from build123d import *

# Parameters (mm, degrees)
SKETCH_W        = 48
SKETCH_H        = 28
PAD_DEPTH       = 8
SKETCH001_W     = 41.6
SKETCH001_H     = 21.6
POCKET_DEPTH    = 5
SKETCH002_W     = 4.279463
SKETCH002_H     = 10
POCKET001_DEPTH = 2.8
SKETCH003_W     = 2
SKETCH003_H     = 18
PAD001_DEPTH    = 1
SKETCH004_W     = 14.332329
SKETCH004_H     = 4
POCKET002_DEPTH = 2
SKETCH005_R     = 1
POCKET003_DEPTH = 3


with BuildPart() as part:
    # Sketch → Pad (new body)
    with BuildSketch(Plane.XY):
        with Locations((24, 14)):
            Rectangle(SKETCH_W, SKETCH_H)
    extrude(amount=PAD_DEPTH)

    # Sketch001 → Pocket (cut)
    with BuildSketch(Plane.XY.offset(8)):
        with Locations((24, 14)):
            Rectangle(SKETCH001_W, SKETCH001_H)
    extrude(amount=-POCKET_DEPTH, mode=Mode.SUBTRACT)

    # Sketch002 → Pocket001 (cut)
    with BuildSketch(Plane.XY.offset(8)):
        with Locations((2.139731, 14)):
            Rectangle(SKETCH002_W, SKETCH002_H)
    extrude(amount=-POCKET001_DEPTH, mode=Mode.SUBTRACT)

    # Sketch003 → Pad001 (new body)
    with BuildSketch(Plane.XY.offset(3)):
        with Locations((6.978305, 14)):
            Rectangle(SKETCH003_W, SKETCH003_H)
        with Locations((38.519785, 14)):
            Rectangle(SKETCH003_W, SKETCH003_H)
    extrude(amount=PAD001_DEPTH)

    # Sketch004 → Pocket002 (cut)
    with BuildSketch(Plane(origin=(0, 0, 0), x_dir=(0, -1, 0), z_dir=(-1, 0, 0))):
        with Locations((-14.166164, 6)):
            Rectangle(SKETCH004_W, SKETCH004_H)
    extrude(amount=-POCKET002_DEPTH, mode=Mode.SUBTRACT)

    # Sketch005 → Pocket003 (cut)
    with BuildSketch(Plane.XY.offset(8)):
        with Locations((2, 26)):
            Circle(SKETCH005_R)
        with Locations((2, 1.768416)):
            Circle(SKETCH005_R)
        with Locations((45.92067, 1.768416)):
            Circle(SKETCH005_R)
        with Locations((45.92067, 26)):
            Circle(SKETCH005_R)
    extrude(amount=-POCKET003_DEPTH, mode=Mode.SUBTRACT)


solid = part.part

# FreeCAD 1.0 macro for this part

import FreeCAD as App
import Part
import Sketcher
from FreeCAD import Vector


def add_polygon(sketch, points):
    """Adds a closed chain of lines whose ends are joined by coincident constraints."""
    first, n = sketch.GeometryCount, len(points)
    for a, b in zip(points, points[1:] + points[:1]):
        sketch.addGeometry(Part.LineSegment(App.Vector(*a, 0), App.Vector(*b, 0)), False)
    for i in range(n):
        sketch.addConstraint(Sketcher.Constraint("Coincident", first + i, 2, first + (i + 1) % n, 1))

doc = App.newDocument("Part")
body = doc.addObject("PartDesign::Body", "Body")

# Sketch on XY plane
sketch1 = body.newObject("Sketcher::SketchObject", "Sketch")
sketch1.AttachmentSupport = (doc.getObject("XY_Plane"), [""])
sketch1.MapMode = "FlatFace"
add_polygon(sketch1, [(0, 28), (0, 0), (48, 0), (48, 28)])  # lines 0-3
sketch1.addConstraint(Sketcher.Constraint("Vertical", 0))
sketch1.addConstraint(Sketcher.Constraint("Horizontal", 1))
sketch1.addConstraint(Sketcher.Constraint("Vertical", 2))
sketch1.addConstraint(Sketcher.Constraint("Horizontal", 3))
sketch1.addConstraint(Sketcher.Constraint("Coincident", 0, 2, -1, 1))
sketch1.addConstraint(Sketcher.Constraint("DistanceX", 1, 1, 1, 2, 48.0))
sketch1.addConstraint(Sketcher.Constraint("DistanceY", 0, 2, 0, 1, 28.0))
pad1 = body.newObject("PartDesign::Pad", "Pad")
pad1.Profile = sketch1
pad1.Length = 8

# Sketch on XY plane
sketch2 = body.newObject("Sketcher::SketchObject", "Sketch001")
sketch2.AttachmentSupport = (doc.getObject("XY_Plane"), [""])
sketch2.MapMode = "FlatFace"
sketch2.AttachmentOffset = App.Placement(Vector(0, 0, 8), App.Rotation())
add_polygon(sketch2, [(3, 25), (3, 3), (45, 3), (45, 25)])  # lines 0-3
sketch2.addConstraint(Sketcher.Constraint("Vertical", 0))
sketch2.addConstraint(Sketcher.Constraint("Horizontal", 1))
sketch2.addConstraint(Sketcher.Constraint("Vertical", 2))
sketch2.addConstraint(Sketcher.Constraint("Horizontal", 3))
sketch2.addConstraint(Sketcher.Constraint("DistanceX", 1, 1, 1, 2, 41.6))
sketch2.addConstraint(Sketcher.Constraint("DistanceY", 0, 2, 0, 1, 21.6))
sketch2.addConstraint(Sketcher.Constraint("DistanceX", -1, 1, 0, 2, 3.2))
sketch2.addConstraint(Sketcher.Constraint("DistanceY", -1, 1, 0, 2, 3.2))
pocket1 = body.newObject("PartDesign::Pocket", "Pocket")
pocket1.Profile = sketch2
pocket1.Length = 5

# Sketch on XY plane
sketch3 = body.newObject("Sketcher::SketchObject", "Sketch002")
sketch3.AttachmentSupport = (doc.getObject("XY_Plane"), [""])
sketch3.MapMode = "FlatFace"
sketch3.AttachmentOffset = App.Placement(Vector(0, 0, 8), App.Rotation())
add_polygon(sketch3, [(0, 19), (0, 9), (4.3, 9), (4.3, 19)])  # lines 0-3
sketch3.addConstraint(Sketcher.Constraint("Vertical", 0))
sketch3.addConstraint(Sketcher.Constraint("Horizontal", 1))
sketch3.addConstraint(Sketcher.Constraint("Vertical", 2))
sketch3.addConstraint(Sketcher.Constraint("Horizontal", 3))
sketch3.addConstraint(Sketcher.Constraint("PointOnObject", 0, 2, -2))
sketch3.addConstraint(Sketcher.Constraint("DistanceY", 0, 2, 0, 1, 10.0))
sketch3.addConstraint(Sketcher.Constraint("DistanceY", -1, 1, 0, 2, 9.0))
sketch3.addConstraint(Sketcher.Constraint("DistanceX", 1, 1, 1, 2, 4.279463))
pocket2 = body.newObject("PartDesign::Pocket", "Pocket001")
pocket2.Profile = sketch3
pocket2.Length = 2.8

# Sketch on XY plane
sketch4 = body.newObject("Sketcher::SketchObject", "Sketch003")
sketch4.AttachmentSupport = (doc.getObject("XY_Plane"), [""])
sketch4.MapMode = "FlatFace"
sketch4.AttachmentOffset = App.Placement(Vector(0, 0, 3), App.Rotation())
add_polygon(sketch4, [(6, 23), (6, 5), (8, 5), (8, 23)])  # lines 0-3
add_polygon(sketch4, [(37.5, 23), (37.5, 5), (39.5, 5), (39.5, 23)])  # lines 4-7
sketch4.addConstraint(Sketcher.Constraint("Vertical", 0))
sketch4.addConstraint(Sketcher.Constraint("Horizontal", 1))
sketch4.addConstraint(Sketcher.Constraint("Vertical", 2))
sketch4.addConstraint(Sketcher.Constraint("Horizontal", 3))
sketch4.addConstraint(Sketcher.Constraint("Vertical", 4))
sketch4.addConstraint(Sketcher.Constraint("Horizontal", 5))
sketch4.addConstraint(Sketcher.Constraint("Vertical", 6))
sketch4.addConstraint(Sketcher.Constraint("Horizontal", 7))
sketch4.addConstraint(Sketcher.Constraint("Horizontal", 1, 2, 4, 2))
sketch4.addConstraint(Sketcher.Constraint("Horizontal", 3, 2, 6, 2))
sketch4.addConstraint(Sketcher.Constraint("Equal", 3, 5))
sketch4.addConstraint(Sketcher.Constraint("DistanceX", 1, 1, 1, 2, 2.0))
sketch4.addConstraint(Sketcher.Constraint("DistanceY", 0, 2, 0, 1, 18.0))
sketch4.addConstraint(Sketcher.Constraint("DistanceY", -1, 1, 0, 2, 5.0))
sketch4.addConstraint(Sketcher.Constraint("DistanceX", 1, 2, 4, 2, 29.54148))
sketch4.addConstraint(Sketcher.Constraint("DistanceX", -1, 1, 0, 2, 5.978305))
pad2 = body.newObject("PartDesign::Pad", "Pad001")
pad2.Profile = sketch4
pad2.Length = 1

# Sketch on YZ plane
sketch5 = body.newObject("Sketcher::SketchObject", "Sketch004")
sketch5.AttachmentSupport = (doc.getObject("YZ_Plane"), [""])
sketch5.MapMode = "FlatFace"
add_polygon(sketch5, [(21.3, 8), (21.3, 4), (7, 4), (7, 8)])  # lines 0-3
sketch5.addConstraint(Sketcher.Constraint("Vertical", 0))
sketch5.addConstraint(Sketcher.Constraint("Horizontal", 1))
sketch5.addConstraint(Sketcher.Constraint("Vertical", 2))
sketch5.addConstraint(Sketcher.Constraint("Horizontal", 3))
sketch5.addConstraint(Sketcher.Constraint("DistanceY", 0, 2, 0, 1, 4.0))
sketch5.addConstraint(Sketcher.Constraint("DistanceY", -1, 1, 0, 2, 4.0))
sketch5.addConstraint(Sketcher.Constraint("DistanceX", -1, 1, 1, 2, 7.0))
sketch5.addConstraint(Sketcher.Constraint("DistanceX", 1, 2, 1, 1, 14.332329))
pocket3 = body.newObject("PartDesign::Pocket", "Pocket002")
pocket3.Profile = sketch5
pocket3.Length = 2
pocket3.Reversed = True

# Sketch on XY plane
sketch6 = body.newObject("Sketcher::SketchObject", "Sketch005")
sketch6.AttachmentSupport = (doc.getObject("XY_Plane"), [""])
sketch6.MapMode = "FlatFace"
sketch6.AttachmentOffset = App.Placement(Vector(0, 0, 8), App.Rotation())
sketch6.addGeometry(Part.Circle(Vector(2, 26, 0), Vector(0, 0, 1), 1), False)
sketch6.addGeometry(Part.Circle(Vector(2, 1.8, 0), Vector(0, 0, 1), 1), False)
sketch6.addGeometry(Part.Circle(Vector(45.9, 1.8, 0), Vector(0, 0, 1), 1), False)
sketch6.addGeometry(Part.Circle(Vector(45.9, 26, 0), Vector(0, 0, 1), 1), False)
sketch6.addConstraint(Sketcher.Constraint("Equal", 0, 1))
sketch6.addConstraint(Sketcher.Constraint("Equal", 1, 2))
sketch6.addConstraint(Sketcher.Constraint("Equal", 2, 3))
sketch6.addConstraint(Sketcher.Constraint("Horizontal", 1, 3, 2, 3))
sketch6.addConstraint(Sketcher.Constraint("Horizontal", 0, 3, 3, 3))
sketch6.addConstraint(Sketcher.Constraint("Vertical", 0, 3, 1, 3))
sketch6.addConstraint(Sketcher.Constraint("Vertical", 2, 3, 3, 3))
sketch6.addConstraint(Sketcher.Constraint("Diameter", 0, 2.0))
sketch6.addConstraint(Sketcher.Constraint("DistanceX", -1, 1, 0, 3, 2.0))
sketch6.addConstraint(Sketcher.Constraint("DistanceY", -1, 1, 0, 3, 26.0))
sketch6.addConstraint(Sketcher.Constraint("DistanceX", -1, 1, 2, 3, 45.92067))
sketch6.addConstraint(Sketcher.Constraint("DistanceY", -1, 1, 1, 3, 1.768416))
pocket4 = body.newObject("PartDesign::Pocket", "Pocket003")
pocket4.Profile = sketch6
pocket4.Length = 3

doc.recompute()
